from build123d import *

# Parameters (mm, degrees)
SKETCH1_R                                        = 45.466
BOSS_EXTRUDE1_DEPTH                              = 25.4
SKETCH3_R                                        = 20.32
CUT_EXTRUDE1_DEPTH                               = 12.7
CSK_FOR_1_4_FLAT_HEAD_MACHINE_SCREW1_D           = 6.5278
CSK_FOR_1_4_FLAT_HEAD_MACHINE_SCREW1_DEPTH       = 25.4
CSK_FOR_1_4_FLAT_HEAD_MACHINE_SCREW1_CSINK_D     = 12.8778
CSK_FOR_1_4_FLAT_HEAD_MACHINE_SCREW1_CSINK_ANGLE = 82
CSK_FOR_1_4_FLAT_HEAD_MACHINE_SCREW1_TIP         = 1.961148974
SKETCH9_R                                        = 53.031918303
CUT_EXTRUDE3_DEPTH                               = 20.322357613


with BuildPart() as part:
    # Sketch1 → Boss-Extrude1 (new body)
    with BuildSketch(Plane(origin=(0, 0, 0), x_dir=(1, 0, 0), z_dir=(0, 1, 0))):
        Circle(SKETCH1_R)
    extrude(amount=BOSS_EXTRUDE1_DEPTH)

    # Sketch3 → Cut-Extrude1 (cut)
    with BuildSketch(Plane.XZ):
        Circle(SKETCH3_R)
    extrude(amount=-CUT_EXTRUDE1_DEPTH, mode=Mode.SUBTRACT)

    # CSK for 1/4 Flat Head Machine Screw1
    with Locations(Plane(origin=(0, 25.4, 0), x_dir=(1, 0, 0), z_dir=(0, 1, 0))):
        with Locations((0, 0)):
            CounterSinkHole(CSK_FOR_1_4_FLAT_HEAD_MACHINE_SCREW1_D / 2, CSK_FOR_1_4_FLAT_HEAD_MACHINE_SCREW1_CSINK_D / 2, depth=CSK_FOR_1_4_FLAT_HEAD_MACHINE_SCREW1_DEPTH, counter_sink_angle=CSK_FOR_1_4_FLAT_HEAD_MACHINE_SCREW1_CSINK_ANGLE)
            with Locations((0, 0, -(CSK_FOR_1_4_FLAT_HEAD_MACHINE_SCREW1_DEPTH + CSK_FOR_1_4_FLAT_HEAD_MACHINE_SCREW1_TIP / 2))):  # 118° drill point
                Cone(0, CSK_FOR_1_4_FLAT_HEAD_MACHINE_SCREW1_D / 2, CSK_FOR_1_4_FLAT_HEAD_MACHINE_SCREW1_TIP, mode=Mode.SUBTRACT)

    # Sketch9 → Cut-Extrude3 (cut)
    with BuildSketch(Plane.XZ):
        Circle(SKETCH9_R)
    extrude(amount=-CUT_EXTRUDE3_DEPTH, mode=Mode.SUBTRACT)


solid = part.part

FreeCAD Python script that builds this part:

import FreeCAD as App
import Part
import Sketcher
from FreeCAD import Vector
Q = App.Units.Quantity

doc = App.newDocument("Part")
body = doc.addObject("PartDesign::Body", "Body")

# Sketch on XZ plane
sketch1 = body.newObject("Sketcher::SketchObject", "Sketch")
sketch1.AttachmentSupport = (doc.getObject("XZ_Plane"), [""])
sketch1.MapMode = "FlatFace"
sketch1.addGeometry(Part.Circle(Vector(0, 0, 0), Vector(0, 0, 1), 45.466), False)
sketch1.addConstraint([
    Sketcher.Constraint("Coincident", 0, 3, -1, 1),
    Sketcher.Constraint("Diameter", 0, Q("3.58 in")),
])
pad1 = body.newObject("PartDesign::Pad", "Pad")
pad1.Profile = sketch1
pad1.Length = Q("1 in")
pad1.Reversed = True

# Sketch on XZ plane
sketch2 = body.newObject("Sketcher::SketchObject", "Sketch001")
sketch2.AttachmentSupport = (doc.getObject("XZ_Plane"), [""])
sketch2.MapMode = "FlatFace"
sketch2.addGeometry(Part.Circle(Vector(0, 0, 0), Vector(0, 0, 1), 20.32), False)
sketch2.addConstraint([
    Sketcher.Constraint("Coincident", 0, 3, -1, 1),
    Sketcher.Constraint("Diameter", 0, Q("1.6 in")),
])
pocket1 = body.newObject("PartDesign::Pocket", "Pocket")
pocket1.Profile = sketch2
pocket1.Length = Q("0.5 in")

# Sketch on XZ plane
sketch3 = body.newObject("Sketcher::SketchObject", "Sketch002")
sketch3.AttachmentSupport = (doc.getObject("XZ_Plane"), [""])
sketch3.MapMode = "FlatFace"
sketch3.AttachmentOffset = App.Placement(Vector(0, 0, -1 * 25.4), App.Rotation())
sketch3.addGeometry(Part.Circle(Vector(0, 0, 0), Vector(0, 0, 1), 3.2639), False)
sketch3.addConstraint([
    Sketcher.Constraint("Coincident", 0, 3, -1, 1),
    Sketcher.Constraint("Diameter", 0, Q("0.257 in")),
])
doc.recompute()
hole = body.newObject("PartDesign::Hole", "Hole")
hole.Profile = sketch3
hole.ThreadType = "None"
hole.Diameter = Q("0.257 in")
hole.DepthType = "Dimension"
hole.Depth = Q("1 in")
hole.DrillPoint = "Angled"
hole.DrillPointAngle = 118
hole.HoleCutType = "Countersink"
hole.HoleCutDiameter = Q("0.507 in")
hole.HoleCutCountersinkAngle = 82
hole.Reversed = True

# Sketch on XZ plane
sketch4 = body.newObject("Sketcher::SketchObject", "Sketch003")
sketch4.AttachmentSupport = (doc.getObject("XZ_Plane"), [""])
sketch4.MapMode = "FlatFace"
sketch4.addGeometry(Part.Circle(Vector(0, 0, 0), Vector(0, 0, 1), 53.031918), False)
sketch4.addConstraint([
    Sketcher.Constraint("Coincident", 0, 3, -1, 1),
    Sketcher.Constraint("Diameter", 0, 106.063837),
])
pocket2 = body.newObject("PartDesign::Pocket", "Pocket001")
pocket2.Profile = sketch4
pocket2.Length = 20.322358

doc.recompute()
